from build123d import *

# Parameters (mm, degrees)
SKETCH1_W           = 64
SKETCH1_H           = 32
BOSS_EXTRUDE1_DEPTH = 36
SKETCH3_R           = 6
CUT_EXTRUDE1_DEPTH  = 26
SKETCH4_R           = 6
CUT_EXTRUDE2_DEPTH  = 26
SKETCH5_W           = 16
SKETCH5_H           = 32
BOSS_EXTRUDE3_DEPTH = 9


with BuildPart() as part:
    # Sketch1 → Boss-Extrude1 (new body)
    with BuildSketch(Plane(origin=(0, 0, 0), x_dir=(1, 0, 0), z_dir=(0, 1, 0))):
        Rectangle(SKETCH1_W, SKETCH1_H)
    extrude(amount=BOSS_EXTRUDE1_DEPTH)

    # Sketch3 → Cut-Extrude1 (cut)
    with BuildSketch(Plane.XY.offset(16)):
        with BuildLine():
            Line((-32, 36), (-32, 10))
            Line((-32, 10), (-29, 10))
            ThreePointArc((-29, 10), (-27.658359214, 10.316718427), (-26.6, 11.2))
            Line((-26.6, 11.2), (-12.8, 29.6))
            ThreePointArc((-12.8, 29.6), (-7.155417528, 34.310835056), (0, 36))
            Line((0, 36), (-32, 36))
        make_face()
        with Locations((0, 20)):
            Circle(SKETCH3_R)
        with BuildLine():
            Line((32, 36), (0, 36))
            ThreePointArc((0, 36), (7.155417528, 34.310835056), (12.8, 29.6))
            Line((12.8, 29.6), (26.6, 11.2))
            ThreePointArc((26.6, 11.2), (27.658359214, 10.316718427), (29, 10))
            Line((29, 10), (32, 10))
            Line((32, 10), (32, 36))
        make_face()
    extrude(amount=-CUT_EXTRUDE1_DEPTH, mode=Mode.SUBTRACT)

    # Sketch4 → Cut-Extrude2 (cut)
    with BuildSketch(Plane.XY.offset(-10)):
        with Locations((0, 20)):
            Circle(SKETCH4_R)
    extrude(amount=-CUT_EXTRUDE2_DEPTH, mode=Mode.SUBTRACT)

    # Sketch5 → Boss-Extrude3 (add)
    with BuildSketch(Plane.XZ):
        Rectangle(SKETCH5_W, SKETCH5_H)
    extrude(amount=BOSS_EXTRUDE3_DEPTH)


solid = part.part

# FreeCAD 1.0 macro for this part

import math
import FreeCAD as App
import Part
import Sketcher

V = App.Vector

doc = App.newDocument("Part")
body = doc.addObject("PartDesign::Body", "Body")

sketch1 = body.newObject("Sketcher::SketchObject", "Sketch")
sketch1.AttachmentSupport = (doc.getObject("XZ_Plane"), [""])
sketch1.MapMode = "FlatFace"
sketch1.addGeometry([
    Part.LineSegment(V(-32, -16, 0), V(-32, 16, 0)),
    Part.LineSegment(V(-32, 16, 0), V(32, 16, 0)),
    Part.LineSegment(V(32, 16, 0), V(32, -16, 0)),
    Part.LineSegment(V(32, -16, 0), V(-32, -16, 0)),
], False)
sketch1.addConstraint([
    Sketcher.Constraint("Coincident", 0, 2, 1, 1),
    Sketcher.Constraint("Coincident", 1, 2, 2, 1),
    Sketcher.Constraint("Coincident", 2, 2, 3, 1),
    Sketcher.Constraint("Coincident", 3, 2, 0, 1),
    Sketcher.Constraint("Vertical", 0),
    Sketcher.Constraint("Horizontal", 1),
    Sketcher.Constraint("Vertical", 2),
    Sketcher.Constraint("Horizontal", 3),
    Sketcher.Constraint("Symmetric", 0, 2, 2, 2, -1, 1),
    Sketcher.Constraint("DistanceX", 1, 1, 1, 2, 64.0),
    Sketcher.Constraint("DistanceY", 0, 1, 0, 2, 32.0),
])
pad1 = body.newObject("PartDesign::Pad", "Pad")
pad1.Profile = sketch1
pad1.Length = 36
pad1.Reversed = True

sketch2 = body.newObject("Sketcher::SketchObject", "Sketch001")
sketch2.AttachmentSupport = (doc.getObject("XY_Plane"), [""])
sketch2.MapMode = "FlatFace"
sketch2.AttachmentOffset = App.Placement(V(0, 0, 16), App.Rotation())
sketch2.addGeometry([
    Part.LineSegment(V(-32, 36, 0), V(-32, 10, 0)),
    Part.LineSegment(V(-32, 10, 0), V(-29, 10, 0)),
    Part.ArcOfCircle(Part.Circle(V(-29, 13, 0), V(0, 0, 1), 3), math.radians(-90), math.radians(-36.869898)),
    Part.LineSegment(V(-26.6, 11.2, 0), V(-12.8, 29.6, 0)),
    Part.ArcOfCircle(Part.Circle(V(0, 20, 0), V(0, 0, 1), 16), math.radians(90), math.radians(143.130102)),
    Part.LineSegment(V(0, 36, 0), V(-32, 36, 0)),
    Part.Circle(V(0, 20, 0), V(0, 0, 1), 6),
    Part.LineSegment(V(32, 36, 0), V(0, 36, 0)),
    Part.ArcOfCircle(Part.Circle(V(0, 20, 0), V(0, 0, 1), 16), math.radians(36.869898), math.radians(90)),
    Part.LineSegment(V(12.8, 29.6, 0), V(26.6, 11.2, 0)),
    Part.ArcOfCircle(Part.Circle(V(29, 13, 0), V(0, 0, 1), 3), math.radians(-143.130102), math.radians(-90)),
    Part.LineSegment(V(29, 10, 0), V(32, 10, 0)),
    Part.LineSegment(V(32, 10, 0), V(32, 36, 0)),
], False)
sketch2.addConstraint([
    Sketcher.Constraint("Coincident", 0, 2, 1, 1),
    Sketcher.Constraint("Tangent", 1, 2, 2, 1),
    Sketcher.Constraint("Tangent", 2, 2, 3, 1),
    Sketcher.Constraint("Tangent", 3, 2, 4, 2),
    Sketcher.Constraint("Tangent", 4, 1, 5, 1),
    Sketcher.Constraint("Coincident", 5, 2, 0, 1),
    Sketcher.Constraint("Tangent", 7, 2, 8, 2),
    Sketcher.Constraint("Tangent", 8, 1, 9, 1),
    Sketcher.Constraint("Tangent", 9, 2, 10, 1),
    Sketcher.Constraint("Tangent", 10, 2, 11, 1),
    Sketcher.Constraint("Coincident", 11, 2, 12, 1),
    Sketcher.Constraint("Coincident", 12, 2, 7, 1),
    Sketcher.Constraint("Vertical", 0),
    Sketcher.Constraint("Horizontal", 1),
    Sketcher.Constraint("Horizontal", 5),
    Sketcher.Constraint("Horizontal", 7),
    Sketcher.Constraint("Horizontal", 11),
    Sketcher.Constraint("Vertical", 12),
    Sketcher.Constraint("Coincident", 6, 3, 4, 3),
    Sketcher.Constraint("Coincident", 8, 3, 4, 3),
    Sketcher.Constraint("Equal", 4, 8),
    Sketcher.Constraint("Equal", 2, 10),
    Sketcher.Constraint("Symmetric", 2, 3, 10, 3, -2),
    Sketcher.Constraint("PointOnObject", 4, 3, -2),
    Sketcher.Constraint("Equal", 5, 7),
    Sketcher.Constraint("Diameter", 6, 12.0),
    Sketcher.Constraint("Radius", 2, 3.0),
    Sketcher.Constraint("Radius", 4, 16.0),
    Sketcher.Constraint("DistanceX", 1, 1, 1, 2, 3.0),
    Sketcher.Constraint("DistanceX", 5, 2, 5, 1, 32.0),
    Sketcher.Constraint("DistanceY", 0, 2, 0, 1, 26.0),
    Sketcher.Constraint("DistanceY", -1, 1, 2, 3, 13.0),
])
pocket1 = body.newObject("PartDesign::Pocket", "Pocket")
pocket1.Profile = sketch2
pocket1.Length = 26

sketch3 = body.newObject("Sketcher::SketchObject", "Sketch002")
sketch3.AttachmentSupport = (doc.getObject("XY_Plane"), [""])
sketch3.MapMode = "FlatFace"
sketch3.AttachmentOffset = App.Placement(V(0, 0, -10), App.Rotation())
sketch3.addGeometry(Part.Circle(V(0, 20, 0), V(0, 0, 1), 6), False)
sketch3.addConstraint([
    Sketcher.Constraint("PointOnObject", 0, 3, -2),
    Sketcher.Constraint("Diameter", 0, 12.0),
    Sketcher.Constraint("DistanceY", -1, 1, 0, 3, 20.0),
])
pocket2 = body.newObject("PartDesign::Pocket", "Pocket001")
pocket2.Profile = sketch3
pocket2.Length = 26

sketch4 = body.newObject("Sketcher::SketchObject", "Sketch003")
sketch4.AttachmentSupport = (doc.getObject("XZ_Plane"), [""])
sketch4.MapMode = "FlatFace"
sketch4.addGeometry([
    Part.LineSegment(V(-8, 16, 0), V(-8, -16, 0)),
    Part.LineSegment(V(-8, -16, 0), V(8, -16, 0)),
    Part.LineSegment(V(8, -16, 0), V(8, 16, 0)),
    Part.LineSegment(V(8, 16, 0), V(-8, 16, 0)),
], False)
sketch4.addConstraint([
    Sketcher.Constraint("Coincident", 0, 2, 1, 1),
    Sketcher.Constraint("Coincident", 1, 2, 2, 1),
    Sketcher.Constraint("Coincident", 2, 2, 3, 1),
    Sketcher.Constraint("Coincident", 3, 2, 0, 1),
    Sketcher.Constraint("Vertical", 0),
    Sketcher.Constraint("Horizontal", 1),
    Sketcher.Constraint("Vertical", 2),
    Sketcher.Constraint("Horizontal", 3),
    Sketcher.Constraint("Symmetric", 0, 2, 2, 2, -1, 1),
    Sketcher.Constraint("DistanceX", 1, 1, 1, 2, 16.0),
    Sketcher.Constraint("DistanceY", 0, 2, 0, 1, 32.0),
])
pad2 = body.newObject("PartDesign::Pad", "Pad001")
pad2.Profile = sketch4
pad2.Length = 9

doc.recompute()
